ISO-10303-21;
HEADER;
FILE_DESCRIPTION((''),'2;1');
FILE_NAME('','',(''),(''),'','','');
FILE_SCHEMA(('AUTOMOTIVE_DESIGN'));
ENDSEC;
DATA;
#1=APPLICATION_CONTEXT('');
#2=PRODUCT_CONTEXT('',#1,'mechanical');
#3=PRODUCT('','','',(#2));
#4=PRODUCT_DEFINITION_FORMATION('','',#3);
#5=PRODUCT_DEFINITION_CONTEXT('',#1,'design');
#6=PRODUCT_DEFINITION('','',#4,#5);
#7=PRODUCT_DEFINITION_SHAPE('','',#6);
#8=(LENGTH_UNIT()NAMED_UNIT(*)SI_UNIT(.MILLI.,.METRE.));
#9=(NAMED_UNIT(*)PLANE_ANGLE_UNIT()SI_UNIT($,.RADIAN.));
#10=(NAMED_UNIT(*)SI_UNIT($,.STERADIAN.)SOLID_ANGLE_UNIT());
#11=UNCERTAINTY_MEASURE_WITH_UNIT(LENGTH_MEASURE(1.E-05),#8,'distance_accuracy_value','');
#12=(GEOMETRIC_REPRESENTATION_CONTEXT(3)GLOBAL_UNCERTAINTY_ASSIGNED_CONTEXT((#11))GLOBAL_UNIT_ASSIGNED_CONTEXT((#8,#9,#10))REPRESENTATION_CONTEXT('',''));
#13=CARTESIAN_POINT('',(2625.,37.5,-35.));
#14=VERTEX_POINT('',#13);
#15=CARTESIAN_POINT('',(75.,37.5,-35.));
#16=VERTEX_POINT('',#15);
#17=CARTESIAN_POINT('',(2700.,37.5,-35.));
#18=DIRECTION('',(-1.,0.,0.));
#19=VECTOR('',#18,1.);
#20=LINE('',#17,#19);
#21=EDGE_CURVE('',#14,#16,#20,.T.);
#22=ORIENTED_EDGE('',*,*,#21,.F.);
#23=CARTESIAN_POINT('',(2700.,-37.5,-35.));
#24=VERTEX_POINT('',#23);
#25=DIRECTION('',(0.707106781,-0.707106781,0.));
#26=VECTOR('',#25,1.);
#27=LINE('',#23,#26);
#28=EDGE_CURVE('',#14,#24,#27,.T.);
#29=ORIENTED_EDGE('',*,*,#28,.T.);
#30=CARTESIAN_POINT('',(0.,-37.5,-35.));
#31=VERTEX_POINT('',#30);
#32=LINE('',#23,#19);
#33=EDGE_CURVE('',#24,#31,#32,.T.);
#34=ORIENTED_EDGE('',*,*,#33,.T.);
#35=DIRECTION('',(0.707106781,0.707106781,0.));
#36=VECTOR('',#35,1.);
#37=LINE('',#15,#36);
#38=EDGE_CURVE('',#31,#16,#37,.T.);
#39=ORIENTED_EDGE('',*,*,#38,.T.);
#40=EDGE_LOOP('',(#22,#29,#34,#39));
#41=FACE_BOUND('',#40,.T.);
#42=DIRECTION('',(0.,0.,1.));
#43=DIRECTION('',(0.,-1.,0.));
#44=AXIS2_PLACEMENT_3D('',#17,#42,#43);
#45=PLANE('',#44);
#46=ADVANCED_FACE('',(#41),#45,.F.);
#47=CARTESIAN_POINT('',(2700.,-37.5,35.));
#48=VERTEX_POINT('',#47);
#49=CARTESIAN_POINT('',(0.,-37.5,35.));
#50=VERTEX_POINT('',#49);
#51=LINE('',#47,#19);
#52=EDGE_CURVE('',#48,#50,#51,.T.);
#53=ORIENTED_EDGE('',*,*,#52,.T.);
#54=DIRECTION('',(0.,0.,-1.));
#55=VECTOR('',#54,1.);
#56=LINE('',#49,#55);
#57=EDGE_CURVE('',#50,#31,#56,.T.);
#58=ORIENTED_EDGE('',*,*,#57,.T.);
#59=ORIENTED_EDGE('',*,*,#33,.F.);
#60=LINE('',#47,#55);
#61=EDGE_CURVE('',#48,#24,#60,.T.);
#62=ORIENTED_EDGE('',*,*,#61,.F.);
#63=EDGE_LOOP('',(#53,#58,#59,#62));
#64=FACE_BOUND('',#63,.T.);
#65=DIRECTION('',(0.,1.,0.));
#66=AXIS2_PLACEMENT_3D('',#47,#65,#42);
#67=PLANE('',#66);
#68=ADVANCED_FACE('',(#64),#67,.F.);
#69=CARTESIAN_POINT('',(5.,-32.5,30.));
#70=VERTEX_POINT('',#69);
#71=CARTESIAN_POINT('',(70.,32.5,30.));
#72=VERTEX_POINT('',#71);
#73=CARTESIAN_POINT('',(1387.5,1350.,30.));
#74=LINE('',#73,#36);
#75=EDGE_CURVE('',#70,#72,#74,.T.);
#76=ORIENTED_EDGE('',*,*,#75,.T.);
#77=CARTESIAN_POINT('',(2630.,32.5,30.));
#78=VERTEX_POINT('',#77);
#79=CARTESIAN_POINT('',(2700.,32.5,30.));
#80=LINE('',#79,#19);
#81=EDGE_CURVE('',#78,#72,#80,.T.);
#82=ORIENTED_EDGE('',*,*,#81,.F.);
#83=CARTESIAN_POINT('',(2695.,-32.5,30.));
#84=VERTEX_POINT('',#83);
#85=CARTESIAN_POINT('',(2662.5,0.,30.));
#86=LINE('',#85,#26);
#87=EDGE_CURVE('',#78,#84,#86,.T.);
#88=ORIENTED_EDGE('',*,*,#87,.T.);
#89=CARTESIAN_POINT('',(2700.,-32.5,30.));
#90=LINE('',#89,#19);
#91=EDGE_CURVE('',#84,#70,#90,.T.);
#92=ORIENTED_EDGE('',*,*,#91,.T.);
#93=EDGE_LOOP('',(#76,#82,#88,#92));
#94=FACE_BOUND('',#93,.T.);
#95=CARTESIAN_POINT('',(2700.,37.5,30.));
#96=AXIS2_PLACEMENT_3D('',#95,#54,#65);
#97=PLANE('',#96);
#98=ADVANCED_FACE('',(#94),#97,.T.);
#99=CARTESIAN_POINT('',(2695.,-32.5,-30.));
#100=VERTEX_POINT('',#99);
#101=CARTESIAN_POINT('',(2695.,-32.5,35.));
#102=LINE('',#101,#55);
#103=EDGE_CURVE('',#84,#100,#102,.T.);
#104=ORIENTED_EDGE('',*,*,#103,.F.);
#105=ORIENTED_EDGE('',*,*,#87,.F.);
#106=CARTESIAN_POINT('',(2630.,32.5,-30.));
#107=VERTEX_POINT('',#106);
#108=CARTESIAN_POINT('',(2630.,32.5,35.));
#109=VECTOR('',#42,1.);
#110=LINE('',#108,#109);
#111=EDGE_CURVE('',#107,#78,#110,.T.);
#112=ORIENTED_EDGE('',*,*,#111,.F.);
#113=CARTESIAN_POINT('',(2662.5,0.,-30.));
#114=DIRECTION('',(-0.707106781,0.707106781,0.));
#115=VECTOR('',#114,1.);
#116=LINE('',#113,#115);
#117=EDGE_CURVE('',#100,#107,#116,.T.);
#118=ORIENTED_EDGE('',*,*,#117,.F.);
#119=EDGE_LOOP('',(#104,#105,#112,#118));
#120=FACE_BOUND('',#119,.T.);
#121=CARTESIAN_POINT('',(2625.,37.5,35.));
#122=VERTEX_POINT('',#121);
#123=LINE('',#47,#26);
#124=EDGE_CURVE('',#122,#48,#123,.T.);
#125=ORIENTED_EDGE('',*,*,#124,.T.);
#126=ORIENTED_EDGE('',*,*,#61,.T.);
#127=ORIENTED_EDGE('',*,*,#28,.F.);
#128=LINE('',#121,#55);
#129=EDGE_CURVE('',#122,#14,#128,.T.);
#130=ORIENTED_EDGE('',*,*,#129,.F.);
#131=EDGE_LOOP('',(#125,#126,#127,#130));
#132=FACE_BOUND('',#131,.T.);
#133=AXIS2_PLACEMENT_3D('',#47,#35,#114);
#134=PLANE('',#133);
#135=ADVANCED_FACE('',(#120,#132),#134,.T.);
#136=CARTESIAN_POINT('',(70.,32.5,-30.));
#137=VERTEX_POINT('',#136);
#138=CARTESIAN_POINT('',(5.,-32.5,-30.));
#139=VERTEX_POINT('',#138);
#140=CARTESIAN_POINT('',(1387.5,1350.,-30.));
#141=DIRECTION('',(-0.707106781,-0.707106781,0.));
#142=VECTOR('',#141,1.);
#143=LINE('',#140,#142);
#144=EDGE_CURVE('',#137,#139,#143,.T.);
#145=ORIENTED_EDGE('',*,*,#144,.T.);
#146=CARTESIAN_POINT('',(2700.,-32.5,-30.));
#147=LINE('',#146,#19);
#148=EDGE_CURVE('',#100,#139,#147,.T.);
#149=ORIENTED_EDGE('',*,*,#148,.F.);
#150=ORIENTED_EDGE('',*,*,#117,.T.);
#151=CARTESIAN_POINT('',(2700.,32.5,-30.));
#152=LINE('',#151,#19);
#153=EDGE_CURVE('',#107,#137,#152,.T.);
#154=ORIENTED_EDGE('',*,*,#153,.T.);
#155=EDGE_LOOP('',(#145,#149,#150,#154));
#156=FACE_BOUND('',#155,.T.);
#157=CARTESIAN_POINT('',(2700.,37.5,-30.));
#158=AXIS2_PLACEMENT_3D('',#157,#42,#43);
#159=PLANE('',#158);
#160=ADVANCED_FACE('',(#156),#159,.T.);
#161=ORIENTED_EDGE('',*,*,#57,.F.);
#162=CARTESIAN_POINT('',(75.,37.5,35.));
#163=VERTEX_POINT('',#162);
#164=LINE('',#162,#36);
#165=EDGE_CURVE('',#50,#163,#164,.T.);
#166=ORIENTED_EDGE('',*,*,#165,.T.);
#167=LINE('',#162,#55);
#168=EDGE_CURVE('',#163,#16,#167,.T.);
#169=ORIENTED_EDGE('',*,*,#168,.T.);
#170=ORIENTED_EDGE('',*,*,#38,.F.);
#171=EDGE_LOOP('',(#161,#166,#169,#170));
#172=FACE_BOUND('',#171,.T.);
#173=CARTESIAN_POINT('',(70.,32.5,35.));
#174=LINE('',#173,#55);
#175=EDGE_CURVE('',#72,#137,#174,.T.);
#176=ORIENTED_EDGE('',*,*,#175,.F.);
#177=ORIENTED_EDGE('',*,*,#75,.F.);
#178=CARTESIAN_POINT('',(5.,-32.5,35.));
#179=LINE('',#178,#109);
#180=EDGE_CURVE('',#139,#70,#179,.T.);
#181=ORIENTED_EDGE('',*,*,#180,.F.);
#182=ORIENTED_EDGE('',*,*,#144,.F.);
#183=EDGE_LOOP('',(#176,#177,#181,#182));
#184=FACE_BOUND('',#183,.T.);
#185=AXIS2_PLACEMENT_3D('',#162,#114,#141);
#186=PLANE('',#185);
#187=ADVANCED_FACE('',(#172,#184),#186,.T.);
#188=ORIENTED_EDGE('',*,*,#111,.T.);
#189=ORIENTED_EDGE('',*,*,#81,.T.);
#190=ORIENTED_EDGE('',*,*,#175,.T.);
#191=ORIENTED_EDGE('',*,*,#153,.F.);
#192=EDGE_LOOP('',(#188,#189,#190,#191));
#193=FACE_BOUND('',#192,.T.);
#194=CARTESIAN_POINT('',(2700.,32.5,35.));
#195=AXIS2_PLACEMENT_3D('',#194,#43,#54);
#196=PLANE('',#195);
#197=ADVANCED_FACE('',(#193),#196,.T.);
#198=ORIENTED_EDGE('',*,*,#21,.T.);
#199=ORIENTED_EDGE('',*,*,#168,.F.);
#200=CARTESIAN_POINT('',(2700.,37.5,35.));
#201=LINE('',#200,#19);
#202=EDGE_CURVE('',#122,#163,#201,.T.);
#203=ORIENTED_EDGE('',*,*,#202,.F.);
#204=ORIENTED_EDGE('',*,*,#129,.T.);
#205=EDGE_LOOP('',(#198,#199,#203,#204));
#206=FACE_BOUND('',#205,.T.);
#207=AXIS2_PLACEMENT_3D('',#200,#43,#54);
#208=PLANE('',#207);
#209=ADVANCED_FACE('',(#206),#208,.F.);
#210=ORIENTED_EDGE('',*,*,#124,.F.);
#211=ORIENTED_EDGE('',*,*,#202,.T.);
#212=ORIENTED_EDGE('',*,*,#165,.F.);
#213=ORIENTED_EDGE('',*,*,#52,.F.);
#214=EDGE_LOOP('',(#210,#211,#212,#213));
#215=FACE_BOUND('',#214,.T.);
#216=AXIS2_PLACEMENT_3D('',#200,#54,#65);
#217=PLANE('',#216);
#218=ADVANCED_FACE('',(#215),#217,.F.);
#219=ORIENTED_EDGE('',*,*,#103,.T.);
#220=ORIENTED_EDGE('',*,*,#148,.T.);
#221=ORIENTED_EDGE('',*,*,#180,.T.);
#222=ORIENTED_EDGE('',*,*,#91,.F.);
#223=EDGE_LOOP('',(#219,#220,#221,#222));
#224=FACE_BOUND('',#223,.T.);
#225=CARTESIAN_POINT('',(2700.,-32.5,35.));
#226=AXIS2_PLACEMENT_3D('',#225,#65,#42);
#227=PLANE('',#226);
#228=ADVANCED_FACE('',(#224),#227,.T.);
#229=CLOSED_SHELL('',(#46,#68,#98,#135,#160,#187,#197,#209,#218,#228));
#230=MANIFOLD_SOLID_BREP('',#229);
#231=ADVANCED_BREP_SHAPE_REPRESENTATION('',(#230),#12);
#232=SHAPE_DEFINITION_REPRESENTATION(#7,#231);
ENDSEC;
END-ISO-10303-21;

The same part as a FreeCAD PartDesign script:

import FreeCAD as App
import Part
import Sketcher
Q = App.Units.Quantity


def add_polygon(sketch, points):
    """Adds a closed chain of lines whose ends are joined by coincident constraints."""
    first, n = sketch.GeometryCount, len(points)
    for a, b in zip(points, points[1:] + points[:1]):
        sketch.addGeometry(Part.LineSegment(App.Vector(*a, 0), App.Vector(*b, 0)), False)
    for i in range(n):
        sketch.addConstraint(Sketcher.Constraint("Coincident", first + i, 2, first + (i + 1) % n, 1))

doc = App.newDocument("Part")
params = doc.addObject("Spreadsheet::Sheet", "Params")
for row, (alias, value) in enumerate([
    ("sketch1_width", "75 mm"),
    ("sketch1_width2", "65 mm"),
    ("sketch1_height", "70 mm"),
    ("sketch1_height2", "60 mm"),
    ("pad1_length", "2700 mm"),
    ("sketch2_width", "2700 mm"),
    ("sketch2_width2", "2550 mm"),
    ("sketch2_width3", "3242.39 mm"),
    ("sketch2_height", "617.39 mm"),
], start=1):
    params.set(f"A{row}", alias)
    params.set(f"B{row}", "=" + value)
    params.setAlias(f"B{row}", alias)

body = doc.addObject("PartDesign::Body", "Body")

# Sketch on YZ plane
sketch1 = body.newObject("Sketcher::SketchObject", "Sketch")
sketch1.AttachmentSupport = (doc.getObject("YZ_Plane"), [""])
sketch1.MapMode = "FlatFace"
add_polygon(sketch1, [(38, 35), (-38, 35), (-38, -35), (38, -35)])  # lines 0-3
add_polygon(sketch1, [(-32, -30), (-32, 30), (32, 30), (32, -30)])  # lines 4-7
sketch1.addConstraint([
    Sketcher.Constraint("Horizontal", 0),
    Sketcher.Constraint("Vertical", 1),
    Sketcher.Constraint("Horizontal", 2),
    Sketcher.Constraint("Vertical", 3),
    Sketcher.Constraint("Vertical", 4),
    Sketcher.Constraint("Horizontal", 5),
    Sketcher.Constraint("Vertical", 6),
    Sketcher.Constraint("Horizontal", 7),
    Sketcher.Constraint("Symmetric", 0, 2, 2, 2, -1, 1),
    Sketcher.Constraint("Symmetric", 4, 2, 6, 2, -1, 1),
    Sketcher.Constraint("DistanceX", 0, 2, 0, 1, Q("75 mm")),
    Sketcher.Constraint("DistanceX", 5, 1, 5, 2, Q("65 mm")),
    Sketcher.Constraint("DistanceY", 1, 2, 1, 1, Q("70 mm")),
    Sketcher.Constraint("DistanceY", 4, 1, 4, 2, Q("60 mm")),
])
sketch1.setExpression("Constraints[18]", "Params.sketch1_width")
sketch1.setExpression("Constraints[19]", "Params.sketch1_width2")
sketch1.setExpression("Constraints[20]", "Params.sketch1_height")
sketch1.setExpression("Constraints[21]", "Params.sketch1_height2")
pad1 = body.newObject("PartDesign::Pad", "Pad")
pad1.Profile = sketch1
pad1.setExpression("Length", "Params.pad1_length")

# Sketch on XY plane
sketch2 = body.newObject("Sketcher::SketchObject", "Sketch001")
sketch2.AttachmentSupport = (doc.getObject("XY_Plane"), [""])
sketch2.MapMode = "FlatFace"
sketch2.AttachmentOffset = App.Placement(App.Vector(0, 0, -35), App.Rotation())
add_polygon(sketch2, [(2971, 309), (2971, -309), (-271, -309), (-271, 309)])  # lines 0-3
add_polygon(sketch2, [(0, -38), (2700, -38), (2625, 38), (75, 38)])  # lines 4-7
sketch2.addConstraint([
    Sketcher.Constraint("Vertical", 0),
    Sketcher.Constraint("Horizontal", 1),
    Sketcher.Constraint("Vertical", 2),
    Sketcher.Constraint("Horizontal", 3),
    Sketcher.Constraint("Horizontal", 4),
    Sketcher.Constraint("Horizontal", 6),
    Sketcher.Constraint("PointOnObject", 7, 2, -2),
    Sketcher.Constraint("Perpendicular", 5, 7),
    Sketcher.Constraint("Equal", 5, 7),
    Sketcher.Constraint("DistanceX", 4, 1, 4, 2, Q("2700 mm")),
    Sketcher.Constraint("DistanceX", 6, 2, 6, 1, Q("2550 mm")),
    Sketcher.Constraint("DistanceX", 1, 2, 1, 1, Q("3242.39 mm")),
    Sketcher.Constraint("DistanceY", 0, 2, 0, 1, Q("617.39 mm")),
    Sketcher.Constraint("DistanceY", 4, 2, -1, 1, Q("37.5 mm")),
    Sketcher.Constraint("DistanceX", -1, 1, 0, 2, Q("2971.195 mm")),
    Sketcher.Constraint("DistanceY", 0, 2, -1, 1, Q("308.695 mm")),
])
sketch2.setExpression("Constraints[17]", "Params.sketch2_width")
sketch2.setExpression("Constraints[18]", "Params.sketch2_width2")
sketch2.setExpression("Constraints[19]", "Params.sketch2_width3")
sketch2.setExpression("Constraints[20]", "Params.sketch2_height")
pocket1 = body.newObject("PartDesign::Pocket", "Pocket")
pocket1.Profile = sketch2
pocket1.Type = "ThroughAll"
pocket1.Reversed = True

doc.recompute()
